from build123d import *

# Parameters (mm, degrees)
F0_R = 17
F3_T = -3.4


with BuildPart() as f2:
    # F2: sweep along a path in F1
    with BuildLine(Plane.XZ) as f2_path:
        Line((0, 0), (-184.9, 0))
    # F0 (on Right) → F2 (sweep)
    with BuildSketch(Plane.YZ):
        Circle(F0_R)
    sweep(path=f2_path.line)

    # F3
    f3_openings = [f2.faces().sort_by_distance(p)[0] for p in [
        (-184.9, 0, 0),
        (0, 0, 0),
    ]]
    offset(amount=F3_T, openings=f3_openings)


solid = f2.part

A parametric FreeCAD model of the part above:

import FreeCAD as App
import Part
import Sketcher
Q = App.Units.Quantity


def faces_at(feature, points):
    """Names of the faces that lie closest to the given points."""
    faces = feature.Shape.Faces
    near = lambda p: min(range(len(faces)), key=lambda i: faces[i].distToShape(Part.Vertex(*p))[0])
    return sorted({f"Face{near(p) + 1}" for p in points})

doc = App.newDocument("Part")
body = doc.addObject("PartDesign::Body", "Body")

# Sketch on YZ plane
sketch1 = body.newObject("Sketcher::SketchObject", "Sketch")
sketch1.AttachmentSupport = (doc.getObject("YZ_Plane"), [""])
sketch1.MapMode = "FlatFace"
sketch1.addGeometry(Part.Circle(App.Vector(0, 0, 0), App.Vector(0, 0, 1), 17), False)
sketch1.addConstraint(Sketcher.Constraint("Coincident", 0, 3, -1, 1))
sketch1.addConstraint(Sketcher.Constraint("Diameter", 0, Q("34 mm")))

# Sketch on XY plane
sketch2 = body.newObject("Sketcher::SketchObject", "Sketch001")
sketch2.AttachmentSupport = (doc.getObject("XY_Plane"), [""])
sketch2.MapMode = "FlatFace"
sketch2.addGeometry(Part.LineSegment(App.Vector(0, 0, 0), App.Vector(-184.9, 0, 0)), False)
sketch2.addConstraint(Sketcher.Constraint("Horizontal", 0))
sketch2.addConstraint(Sketcher.Constraint("Coincident", 0, 1, -1, 1))
sketch2.addConstraint(Sketcher.Constraint("DistanceX", 0, 2, 0, 1, Q("184.9 mm")))
doc.recompute()

additivepipe = body.newObject("PartDesign::AdditivePipe", "AdditivePipe")
additivepipe.Profile = sketch1
additivepipe.Spine = (sketch2, ["Edge1"])
doc.recompute()

thickness = body.newObject("PartDesign::Thickness", "Thickness")
thickness.Base = (additivepipe, faces_at(additivepipe, [(-184.9, 0, 0), (0, 0, 0)]))
thickness.Value = 3.4
thickness.Reversed = True
thickness.Join = "Arc"

doc.recompute()
